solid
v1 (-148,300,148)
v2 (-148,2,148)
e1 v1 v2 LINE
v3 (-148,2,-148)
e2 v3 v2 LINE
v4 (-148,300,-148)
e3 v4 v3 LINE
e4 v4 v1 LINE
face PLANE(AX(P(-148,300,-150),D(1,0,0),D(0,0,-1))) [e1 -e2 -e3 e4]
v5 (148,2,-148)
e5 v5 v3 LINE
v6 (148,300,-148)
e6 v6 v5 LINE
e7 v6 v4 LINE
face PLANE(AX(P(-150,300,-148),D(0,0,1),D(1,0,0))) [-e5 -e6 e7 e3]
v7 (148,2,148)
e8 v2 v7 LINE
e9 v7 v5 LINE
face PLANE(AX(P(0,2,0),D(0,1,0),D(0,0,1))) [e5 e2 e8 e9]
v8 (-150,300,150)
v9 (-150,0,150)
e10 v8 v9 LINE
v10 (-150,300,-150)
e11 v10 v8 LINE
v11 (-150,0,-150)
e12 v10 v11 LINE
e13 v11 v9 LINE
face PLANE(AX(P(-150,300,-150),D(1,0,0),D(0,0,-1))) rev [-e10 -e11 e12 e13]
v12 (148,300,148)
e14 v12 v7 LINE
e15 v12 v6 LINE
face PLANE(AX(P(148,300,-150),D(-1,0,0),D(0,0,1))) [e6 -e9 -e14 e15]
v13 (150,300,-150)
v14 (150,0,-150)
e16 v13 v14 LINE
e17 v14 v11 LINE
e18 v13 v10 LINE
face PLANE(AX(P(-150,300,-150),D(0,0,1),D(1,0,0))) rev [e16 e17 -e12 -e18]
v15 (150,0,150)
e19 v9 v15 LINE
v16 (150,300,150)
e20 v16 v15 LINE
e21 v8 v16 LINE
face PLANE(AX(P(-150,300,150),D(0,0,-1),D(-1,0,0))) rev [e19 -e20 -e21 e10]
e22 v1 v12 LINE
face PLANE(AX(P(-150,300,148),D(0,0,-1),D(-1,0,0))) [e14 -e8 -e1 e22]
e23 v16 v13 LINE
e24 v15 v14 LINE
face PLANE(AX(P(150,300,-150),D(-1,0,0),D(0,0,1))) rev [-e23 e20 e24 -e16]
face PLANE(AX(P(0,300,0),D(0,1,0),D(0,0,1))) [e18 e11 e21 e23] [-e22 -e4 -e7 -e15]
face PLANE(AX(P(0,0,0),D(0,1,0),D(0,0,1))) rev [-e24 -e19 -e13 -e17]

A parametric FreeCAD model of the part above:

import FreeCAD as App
import Part
import Sketcher
Q = App.Units.Quantity


def faces_at(feature, points):
    """Names of the faces that lie closest to the given points."""
    faces = feature.Shape.Faces
    near = lambda p: min(range(len(faces)), key=lambda i: faces[i].distToShape(Part.Vertex(*p))[0])
    return sorted({f"Face{near(p) + 1}" for p in points})


def add_polygon(sketch, points):
    """Adds a closed chain of lines whose ends are joined by coincident constraints."""
    first, n = sketch.GeometryCount, len(points)
    for a, b in zip(points, points[1:] + points[:1]):
        sketch.addGeometry(Part.LineSegment(App.Vector(*a, 0), App.Vector(*b, 0)), False)
    for i in range(n):
        sketch.addConstraint(Sketcher.Constraint("Coincident", first + i, 2, first + (i + 1) % n, 1))

doc = App.newDocument("Part")
body = doc.addObject("PartDesign::Body", "Body")

# Sketch on XZ plane
sketch1 = body.newObject("Sketcher::SketchObject", "Sketch")
sketch1.AttachmentSupport = (doc.getObject("XZ_Plane"), [""])
sketch1.MapMode = "FlatFace"
add_polygon(sketch1, [(-150, -150), (-150, 150), (150, 150), (150, -150)])  # lines 0-3
sketch1.addConstraint([
    Sketcher.Constraint("Vertical", 0),
    Sketcher.Constraint("Horizontal", 1),
    Sketcher.Constraint("Vertical", 2),
    Sketcher.Constraint("Horizontal", 3),
    Sketcher.Constraint("Symmetric", 0, 2, 2, 2, -1, 1),
    Sketcher.Constraint("Equal", 3, 0),
    Sketcher.Constraint("DistanceX", 1, 1, 1, 2, Q("300 mm")),
])
pad1 = body.newObject("PartDesign::Pad", "Pad")
pad1.Profile = sketch1
pad1.Length = 300
pad1.Reversed = True
doc.recompute()

thickness = body.newObject("PartDesign::Thickness", "Thickness")
thickness.Base = (pad1, faces_at(pad1, [(0, 300, 0)]))
thickness.Value = 2
thickness.Reversed = True
thickness.Join = "Intersection"

doc.recompute()
